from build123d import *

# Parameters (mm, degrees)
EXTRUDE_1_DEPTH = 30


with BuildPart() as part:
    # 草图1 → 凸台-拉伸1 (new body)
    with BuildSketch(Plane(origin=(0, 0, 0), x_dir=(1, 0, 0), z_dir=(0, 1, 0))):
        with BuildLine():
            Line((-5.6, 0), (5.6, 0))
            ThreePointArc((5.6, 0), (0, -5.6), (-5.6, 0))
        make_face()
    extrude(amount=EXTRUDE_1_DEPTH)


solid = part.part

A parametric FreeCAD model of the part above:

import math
import FreeCAD as App
import Part
import Sketcher

V = App.Vector

doc = App.newDocument("Part")
body = doc.addObject("PartDesign::Body", "Body")

# Sketch on XZ plane
sketch1 = body.newObject("Sketcher::SketchObject", "Sketch")
sketch1.AttachmentSupport = (doc.getObject("XZ_Plane"), [""])
sketch1.MapMode = "FlatFace"
sketch1.addGeometry(Part.LineSegment(V(6, 0, 0), V(-6, 0, 0)), False)
sketch1.addGeometry(Part.ArcOfCircle(Part.Circle(V(0, 0, 0), V(0, 0, 1), 6), math.radians(0), math.radians(180)), False)
sketch1.addConstraint(Sketcher.Constraint("Coincident", 0, 1, 1, 1))
sketch1.addConstraint(Sketcher.Constraint("Coincident", 1, 2, 0, 2))
sketch1.addConstraint(Sketcher.Constraint("Horizontal", 0))
sketch1.addConstraint(Sketcher.Constraint("Coincident", 1, 3, -1, 1))
sketch1.addConstraint(Sketcher.Constraint("PointOnObject", 0, 1, -1))
sketch1.addConstraint(Sketcher.Constraint("Radius", 1, 5.6))
pad1 = body.newObject("PartDesign::Pad", "Pad")
pad1.Profile = sketch1
pad1.Length = 30
pad1.Reversed = True

doc.recompute()
